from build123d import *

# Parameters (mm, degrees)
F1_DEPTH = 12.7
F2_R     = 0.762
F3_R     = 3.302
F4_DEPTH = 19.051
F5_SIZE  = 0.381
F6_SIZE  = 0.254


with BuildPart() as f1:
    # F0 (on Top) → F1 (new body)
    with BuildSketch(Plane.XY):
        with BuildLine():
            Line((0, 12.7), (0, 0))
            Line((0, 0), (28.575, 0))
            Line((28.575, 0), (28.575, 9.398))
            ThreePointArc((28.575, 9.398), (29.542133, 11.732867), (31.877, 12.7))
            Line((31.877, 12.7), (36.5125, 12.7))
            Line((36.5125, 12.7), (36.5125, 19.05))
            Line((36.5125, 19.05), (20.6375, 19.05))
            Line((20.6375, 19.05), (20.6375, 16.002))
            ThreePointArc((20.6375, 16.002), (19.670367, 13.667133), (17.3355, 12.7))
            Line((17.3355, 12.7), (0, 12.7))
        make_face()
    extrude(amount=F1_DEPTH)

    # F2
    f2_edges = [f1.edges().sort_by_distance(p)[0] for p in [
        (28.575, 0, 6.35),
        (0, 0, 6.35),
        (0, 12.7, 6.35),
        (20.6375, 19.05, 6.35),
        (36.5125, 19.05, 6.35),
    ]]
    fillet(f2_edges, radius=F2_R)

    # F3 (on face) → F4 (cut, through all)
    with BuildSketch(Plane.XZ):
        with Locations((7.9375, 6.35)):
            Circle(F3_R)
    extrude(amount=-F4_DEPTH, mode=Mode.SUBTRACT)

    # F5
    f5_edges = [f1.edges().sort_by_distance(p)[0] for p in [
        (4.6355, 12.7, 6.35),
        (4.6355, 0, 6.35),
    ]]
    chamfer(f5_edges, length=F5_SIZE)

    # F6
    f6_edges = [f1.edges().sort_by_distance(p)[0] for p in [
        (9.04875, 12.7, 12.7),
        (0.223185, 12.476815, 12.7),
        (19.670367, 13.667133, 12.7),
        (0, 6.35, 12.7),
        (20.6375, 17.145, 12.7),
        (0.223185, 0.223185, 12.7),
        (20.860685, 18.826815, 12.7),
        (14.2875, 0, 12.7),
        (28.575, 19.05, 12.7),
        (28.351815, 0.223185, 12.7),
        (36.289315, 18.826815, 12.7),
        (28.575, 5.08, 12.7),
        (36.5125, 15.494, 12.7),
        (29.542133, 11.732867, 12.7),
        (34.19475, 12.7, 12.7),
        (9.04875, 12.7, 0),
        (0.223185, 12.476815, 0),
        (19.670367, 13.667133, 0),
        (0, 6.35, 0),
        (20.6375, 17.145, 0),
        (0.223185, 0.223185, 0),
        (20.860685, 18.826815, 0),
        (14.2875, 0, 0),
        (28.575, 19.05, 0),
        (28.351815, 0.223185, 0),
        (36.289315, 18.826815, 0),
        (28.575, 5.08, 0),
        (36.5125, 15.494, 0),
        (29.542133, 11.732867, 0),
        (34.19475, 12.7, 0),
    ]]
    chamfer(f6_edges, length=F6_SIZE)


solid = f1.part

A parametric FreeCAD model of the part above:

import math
import FreeCAD as App
import Part
import Sketcher
Q = App.Units.Quantity


def edges_at(feature, points):
    """Names of the edges that pass closest to the given points."""
    edges = feature.Shape.Edges
    near = lambda p: min(range(len(edges)), key=lambda i: edges[i].distToShape(Part.Vertex(*p))[0])
    return sorted({f"Edge{near(p) + 1}" for p in points})

doc = App.newDocument("Part")
body = doc.addObject("PartDesign::Body", "Body")

sketch1 = body.newObject("Sketcher::SketchObject", "Sketch")
sketch1.AttachmentSupport = (doc.getObject("XY_Plane"), [""])
sketch1.MapMode = "FlatFace"
sketch1.addGeometry([
    Part.LineSegment(App.Vector(0, 12.7, 0), App.Vector(0, 0, 0)),
    Part.LineSegment(App.Vector(0, 0, 0), App.Vector(28.6, 0, 0)),
    Part.LineSegment(App.Vector(28.6, 0, 0), App.Vector(28.6, 9.4, 0)),
    Part.ArcOfCircle(Part.Circle(App.Vector(31.9, 9.4, 0), App.Vector(0, 0, 1), 3.3), math.radians(90), math.radians(180)),
    Part.LineSegment(App.Vector(31.9, 12.7, 0), App.Vector(36.5, 12.7, 0)),
    Part.LineSegment(App.Vector(36.5, 12.7, 0), App.Vector(36.5, 19.1, 0)),
    Part.LineSegment(App.Vector(36.5, 19.1, 0), App.Vector(20.6, 19.1, 0)),
    Part.LineSegment(App.Vector(20.6, 19.1, 0), App.Vector(20.6, 16, 0)),
    Part.ArcOfCircle(Part.Circle(App.Vector(17.3, 16, 0), App.Vector(0, 0, 1), 3.3), math.radians(-90), math.radians(0)),
    Part.LineSegment(App.Vector(17.3, 12.7, 0), App.Vector(0, 12.7, 0)),
], False)
sketch1.addConstraint([
    Sketcher.Constraint("Coincident", 0, 2, 1, 1),
    Sketcher.Constraint("Coincident", 1, 2, 2, 1),
    Sketcher.Constraint("Tangent", 2, 2, 3, 2),
    Sketcher.Constraint("Tangent", 3, 1, 4, 1),
    Sketcher.Constraint("Coincident", 4, 2, 5, 1),
    Sketcher.Constraint("Coincident", 5, 2, 6, 1),
    Sketcher.Constraint("Coincident", 6, 2, 7, 1),
    Sketcher.Constraint("Tangent", 7, 2, 8, 2),
    Sketcher.Constraint("Tangent", 8, 1, 9, 1),
    Sketcher.Constraint("Coincident", 9, 2, 0, 1),
    Sketcher.Constraint("Vertical", 0),
    Sketcher.Constraint("Horizontal", 1),
    Sketcher.Constraint("Vertical", 2),
    Sketcher.Constraint("Horizontal", 4),
    Sketcher.Constraint("Vertical", 5),
    Sketcher.Constraint("Horizontal", 6),
    Sketcher.Constraint("Vertical", 7),
    Sketcher.Constraint("Horizontal", 9),
    Sketcher.Constraint("Coincident", 0, 2, -1, 1),
    Sketcher.Constraint("Equal", 3, 8),
    Sketcher.Constraint("Horizontal", 4, 2, 8, 1),
    Sketcher.Constraint("Radius", 3, Q("0.1299999 in")),
    Sketcher.Constraint("DistanceY", 0, 2, 0, 1, Q("0.5 in")),
    Sketcher.Constraint("DistanceY", 5, 1, 5, 2, Q("0.25 in")),
    Sketcher.Constraint("DistanceX", 1, 1, 1, 2, Q("1.125 in")),
    Sketcher.Constraint("DistanceX", 6, 2, 6, 1, Q("0.625 in")),
    Sketcher.Constraint("DistanceX", 4, 1, 4, 2, Q("0.1825 in")),
])
pad1 = body.newObject("PartDesign::Pad", "Pad")
pad1.Profile = sketch1
pad1.Length = Q("0.5 in")
doc.recompute()

fillet = body.newObject("PartDesign::Fillet", "Fillet")
fillet.Base = (pad1, edges_at(pad1, [
    (28.575, 0, 6.35),
    (0, 0, 6.35),
    (0, 12.7, 6.35),
    (20.637, 19.05, 6.35),
    (36.513, 19.05, 6.35),
]))
fillet.Radius = Q("0.03 in")

sketch2 = body.newObject("Sketcher::SketchObject", "Sketch001")
sketch2.AttachmentSupport = (doc.getObject("XZ_Plane"), [""])
sketch2.MapMode = "FlatFace"
sketch2.addGeometry(Part.Circle(App.Vector(7.9, 6.3, 0), App.Vector(0, 0, 1), 3.3), False)
sketch2.addConstraint([
    Sketcher.Constraint("Diameter", 0, Q("0.26 in")),
    Sketcher.Constraint("DistanceY", -1, 1, 0, 3, Q("0.25 in")),
    Sketcher.Constraint("DistanceX", -1, 1, 0, 3, Q("0.3125 in")),
])
pocket1 = body.newObject("PartDesign::Pocket", "Pocket")
pocket1.Profile = sketch2
pocket1.Type = "ThroughAll"
doc.recompute()

chamfer = body.newObject("PartDesign::Chamfer", "Chamfer")
chamfer.Base = (pocket1, edges_at(pocket1, [(4.636, 12.7, 6.35), (4.636, 0, 6.35)]))
chamfer.Size = Q("0.015 in")
doc.recompute()

chamfer2 = body.newObject("PartDesign::Chamfer", "Chamfer001")
chamfer2.Base = (chamfer, edges_at(chamfer, [
    (9.049, 12.7, 12.7),
    (0.223, 12.477, 12.7),
    (19.67, 13.667, 12.7),
    (0, 6.35, 12.7),
    (20.637, 17.145, 12.7),
    (0.223, 0.223, 12.7),
    (20.861, 18.827, 12.7),
    (14.287, 0, 12.7),
    (28.575, 19.05, 12.7),
    (28.352, 0.223, 12.7),
    (36.289, 18.827, 12.7),
    (28.575, 5.08, 12.7),
    (36.513, 15.494, 12.7),
    (29.542, 11.733, 12.7),
    (34.195, 12.7, 12.7),
    (9.049, 12.7, 0),
    (0.223, 12.477, 0),
    (19.67, 13.667, 0),
    (0, 6.35, 0),
    (20.637, 17.145, 0),
    (0.223, 0.223, 0),
    (20.861, 18.827, 0),
    (14.287, 0, 0),
    (28.575, 19.05, 0),
    (28.352, 0.223, 0),
    (36.289, 18.827, 0),
    (28.575, 5.08, 0),
    (36.513, 15.494, 0),
    (29.542, 11.733, 0),
    (34.195, 12.7, 0),
]))
chamfer2.Size = Q("0.01 in")

doc.recompute()
